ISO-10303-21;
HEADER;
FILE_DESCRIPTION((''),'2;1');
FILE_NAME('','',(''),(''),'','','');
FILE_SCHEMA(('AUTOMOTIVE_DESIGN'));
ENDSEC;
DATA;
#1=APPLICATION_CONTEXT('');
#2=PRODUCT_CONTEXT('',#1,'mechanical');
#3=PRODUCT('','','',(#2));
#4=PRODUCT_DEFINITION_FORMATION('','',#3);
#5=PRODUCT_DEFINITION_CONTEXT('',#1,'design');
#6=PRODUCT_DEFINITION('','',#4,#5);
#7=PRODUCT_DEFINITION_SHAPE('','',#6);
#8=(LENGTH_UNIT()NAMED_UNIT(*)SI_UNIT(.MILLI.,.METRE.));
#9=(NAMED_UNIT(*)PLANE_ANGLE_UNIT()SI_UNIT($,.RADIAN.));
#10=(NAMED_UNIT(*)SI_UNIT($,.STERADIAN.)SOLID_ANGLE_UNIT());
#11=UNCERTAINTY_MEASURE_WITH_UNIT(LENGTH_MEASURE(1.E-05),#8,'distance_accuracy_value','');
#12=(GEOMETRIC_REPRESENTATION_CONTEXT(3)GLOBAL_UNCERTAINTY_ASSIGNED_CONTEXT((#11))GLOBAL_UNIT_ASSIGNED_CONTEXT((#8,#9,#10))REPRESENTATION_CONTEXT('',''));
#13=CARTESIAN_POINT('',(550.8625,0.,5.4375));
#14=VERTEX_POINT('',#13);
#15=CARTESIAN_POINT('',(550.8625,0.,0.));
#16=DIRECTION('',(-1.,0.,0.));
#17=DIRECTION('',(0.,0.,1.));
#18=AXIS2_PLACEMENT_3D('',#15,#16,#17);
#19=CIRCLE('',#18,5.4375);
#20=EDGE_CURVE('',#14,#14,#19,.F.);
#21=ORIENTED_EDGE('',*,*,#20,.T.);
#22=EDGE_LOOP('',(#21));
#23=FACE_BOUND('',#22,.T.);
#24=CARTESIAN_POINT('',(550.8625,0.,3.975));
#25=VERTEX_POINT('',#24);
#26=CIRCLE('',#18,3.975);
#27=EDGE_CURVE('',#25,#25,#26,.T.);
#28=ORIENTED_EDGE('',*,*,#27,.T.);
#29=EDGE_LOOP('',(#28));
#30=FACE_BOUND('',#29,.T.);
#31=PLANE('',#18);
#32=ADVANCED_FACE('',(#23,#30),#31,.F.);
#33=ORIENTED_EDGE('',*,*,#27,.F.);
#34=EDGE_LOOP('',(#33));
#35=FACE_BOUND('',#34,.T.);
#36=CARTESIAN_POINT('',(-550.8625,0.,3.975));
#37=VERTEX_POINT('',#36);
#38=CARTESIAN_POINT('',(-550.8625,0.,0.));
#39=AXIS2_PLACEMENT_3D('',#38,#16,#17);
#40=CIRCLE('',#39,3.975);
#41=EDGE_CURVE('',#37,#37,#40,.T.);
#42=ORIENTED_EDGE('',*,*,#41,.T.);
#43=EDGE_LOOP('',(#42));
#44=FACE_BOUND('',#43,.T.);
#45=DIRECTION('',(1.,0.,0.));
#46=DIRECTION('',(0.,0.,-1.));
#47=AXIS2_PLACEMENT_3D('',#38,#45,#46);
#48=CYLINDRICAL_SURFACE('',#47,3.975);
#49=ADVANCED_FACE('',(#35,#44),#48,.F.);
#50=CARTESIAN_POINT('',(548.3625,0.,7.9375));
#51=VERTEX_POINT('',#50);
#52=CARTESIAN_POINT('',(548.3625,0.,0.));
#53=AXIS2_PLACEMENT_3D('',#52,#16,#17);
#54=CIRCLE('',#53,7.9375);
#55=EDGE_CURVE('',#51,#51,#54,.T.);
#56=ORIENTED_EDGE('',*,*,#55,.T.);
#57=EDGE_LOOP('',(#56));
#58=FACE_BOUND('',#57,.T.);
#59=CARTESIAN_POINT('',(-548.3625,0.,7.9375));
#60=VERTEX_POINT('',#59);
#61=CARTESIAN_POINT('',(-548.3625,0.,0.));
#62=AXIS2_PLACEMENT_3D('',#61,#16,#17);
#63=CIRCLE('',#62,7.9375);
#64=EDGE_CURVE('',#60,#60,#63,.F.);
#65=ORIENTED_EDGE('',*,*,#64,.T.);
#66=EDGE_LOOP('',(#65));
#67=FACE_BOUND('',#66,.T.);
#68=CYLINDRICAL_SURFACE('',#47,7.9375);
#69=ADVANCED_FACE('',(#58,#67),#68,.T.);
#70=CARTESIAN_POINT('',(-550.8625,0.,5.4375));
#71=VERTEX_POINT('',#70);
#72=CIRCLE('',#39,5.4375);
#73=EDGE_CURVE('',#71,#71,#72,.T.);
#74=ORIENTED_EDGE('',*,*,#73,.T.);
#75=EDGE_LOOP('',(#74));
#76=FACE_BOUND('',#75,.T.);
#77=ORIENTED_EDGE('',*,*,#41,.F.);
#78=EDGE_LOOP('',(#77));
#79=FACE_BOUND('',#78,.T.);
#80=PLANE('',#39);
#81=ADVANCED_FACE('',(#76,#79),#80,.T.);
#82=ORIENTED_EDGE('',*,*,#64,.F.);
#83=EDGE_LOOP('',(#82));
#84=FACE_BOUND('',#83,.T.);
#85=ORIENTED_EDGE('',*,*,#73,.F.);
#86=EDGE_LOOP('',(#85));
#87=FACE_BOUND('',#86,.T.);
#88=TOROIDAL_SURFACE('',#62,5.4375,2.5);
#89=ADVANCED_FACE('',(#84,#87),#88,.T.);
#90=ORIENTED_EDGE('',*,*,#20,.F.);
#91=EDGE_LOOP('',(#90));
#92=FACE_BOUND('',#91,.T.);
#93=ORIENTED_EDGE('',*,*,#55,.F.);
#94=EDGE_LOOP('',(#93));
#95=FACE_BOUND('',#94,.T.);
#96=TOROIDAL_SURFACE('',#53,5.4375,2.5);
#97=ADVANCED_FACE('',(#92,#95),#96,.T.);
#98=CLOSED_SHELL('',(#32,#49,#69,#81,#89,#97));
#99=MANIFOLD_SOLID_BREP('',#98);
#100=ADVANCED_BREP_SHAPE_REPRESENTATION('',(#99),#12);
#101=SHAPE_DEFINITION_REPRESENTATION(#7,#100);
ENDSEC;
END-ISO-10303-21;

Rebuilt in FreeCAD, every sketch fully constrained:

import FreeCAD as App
import Part
import Sketcher

V = App.Vector
Q = App.Units.Quantity


def edges_at(feature, points):
    """Names of the edges that pass closest to the given points."""
    edges = feature.Shape.Edges
    near = lambda p: min(range(len(edges)), key=lambda i: edges[i].distToShape(Part.Vertex(*p))[0])
    return sorted({f"Edge{near(p) + 1}" for p in points})

doc = App.newDocument("Part")
body = doc.addObject("PartDesign::Body", "Body")

# Sketch on XZ plane
sketch1 = body.newObject("Sketcher::SketchObject", "Sketch")
sketch1.AttachmentSupport = (doc.getObject("XZ_Plane"), [""])
sketch1.MapMode = "FlatFace"
sketch1.addGeometry(Part.Circle(V(0, 0, 0), V(0, 0, 1), 7.9), False)
sketch1.addGeometry(Part.Circle(V(0, 0, 0), V(0, 0, 1), 4), False)
sketch1.addConstraint(Sketcher.Constraint("Coincident", 0, 3, -1, 1))
sketch1.addConstraint(Sketcher.Constraint("Coincident", 1, 3, -1, 1))
sketch1.addConstraint(Sketcher.Constraint("Diameter", 0, Q("0.625 in")))
sketch1.addConstraint(Sketcher.Constraint("Diameter", 1, 7.95))
pad1 = body.newObject("PartDesign::Pad", "Pad")
pad1.Profile = sketch1
pad1.Length = Q("43.375 in")
pad1.Midplane = True
doc.recompute()

fillet = body.newObject("PartDesign::Fillet", "Fillet")
fillet.Base = (pad1, edges_at(pad1, [(-7.938, -550.862, 0), (-7.938, 550.862, 0)]))
fillet.Radius = 2.5
body2 = doc.addObject("PartDesign::Body", "Body001")
doc.recompute()

body.Placement = App.Placement(V(0, 0, 0), App.Rotation(V(0, 0, 1), 90))
boolean = body2.newObject("PartDesign::Boolean", "Boolean")
boolean.Type = "Fuse"
boolean.addObjects([body])

doc.recompute()
